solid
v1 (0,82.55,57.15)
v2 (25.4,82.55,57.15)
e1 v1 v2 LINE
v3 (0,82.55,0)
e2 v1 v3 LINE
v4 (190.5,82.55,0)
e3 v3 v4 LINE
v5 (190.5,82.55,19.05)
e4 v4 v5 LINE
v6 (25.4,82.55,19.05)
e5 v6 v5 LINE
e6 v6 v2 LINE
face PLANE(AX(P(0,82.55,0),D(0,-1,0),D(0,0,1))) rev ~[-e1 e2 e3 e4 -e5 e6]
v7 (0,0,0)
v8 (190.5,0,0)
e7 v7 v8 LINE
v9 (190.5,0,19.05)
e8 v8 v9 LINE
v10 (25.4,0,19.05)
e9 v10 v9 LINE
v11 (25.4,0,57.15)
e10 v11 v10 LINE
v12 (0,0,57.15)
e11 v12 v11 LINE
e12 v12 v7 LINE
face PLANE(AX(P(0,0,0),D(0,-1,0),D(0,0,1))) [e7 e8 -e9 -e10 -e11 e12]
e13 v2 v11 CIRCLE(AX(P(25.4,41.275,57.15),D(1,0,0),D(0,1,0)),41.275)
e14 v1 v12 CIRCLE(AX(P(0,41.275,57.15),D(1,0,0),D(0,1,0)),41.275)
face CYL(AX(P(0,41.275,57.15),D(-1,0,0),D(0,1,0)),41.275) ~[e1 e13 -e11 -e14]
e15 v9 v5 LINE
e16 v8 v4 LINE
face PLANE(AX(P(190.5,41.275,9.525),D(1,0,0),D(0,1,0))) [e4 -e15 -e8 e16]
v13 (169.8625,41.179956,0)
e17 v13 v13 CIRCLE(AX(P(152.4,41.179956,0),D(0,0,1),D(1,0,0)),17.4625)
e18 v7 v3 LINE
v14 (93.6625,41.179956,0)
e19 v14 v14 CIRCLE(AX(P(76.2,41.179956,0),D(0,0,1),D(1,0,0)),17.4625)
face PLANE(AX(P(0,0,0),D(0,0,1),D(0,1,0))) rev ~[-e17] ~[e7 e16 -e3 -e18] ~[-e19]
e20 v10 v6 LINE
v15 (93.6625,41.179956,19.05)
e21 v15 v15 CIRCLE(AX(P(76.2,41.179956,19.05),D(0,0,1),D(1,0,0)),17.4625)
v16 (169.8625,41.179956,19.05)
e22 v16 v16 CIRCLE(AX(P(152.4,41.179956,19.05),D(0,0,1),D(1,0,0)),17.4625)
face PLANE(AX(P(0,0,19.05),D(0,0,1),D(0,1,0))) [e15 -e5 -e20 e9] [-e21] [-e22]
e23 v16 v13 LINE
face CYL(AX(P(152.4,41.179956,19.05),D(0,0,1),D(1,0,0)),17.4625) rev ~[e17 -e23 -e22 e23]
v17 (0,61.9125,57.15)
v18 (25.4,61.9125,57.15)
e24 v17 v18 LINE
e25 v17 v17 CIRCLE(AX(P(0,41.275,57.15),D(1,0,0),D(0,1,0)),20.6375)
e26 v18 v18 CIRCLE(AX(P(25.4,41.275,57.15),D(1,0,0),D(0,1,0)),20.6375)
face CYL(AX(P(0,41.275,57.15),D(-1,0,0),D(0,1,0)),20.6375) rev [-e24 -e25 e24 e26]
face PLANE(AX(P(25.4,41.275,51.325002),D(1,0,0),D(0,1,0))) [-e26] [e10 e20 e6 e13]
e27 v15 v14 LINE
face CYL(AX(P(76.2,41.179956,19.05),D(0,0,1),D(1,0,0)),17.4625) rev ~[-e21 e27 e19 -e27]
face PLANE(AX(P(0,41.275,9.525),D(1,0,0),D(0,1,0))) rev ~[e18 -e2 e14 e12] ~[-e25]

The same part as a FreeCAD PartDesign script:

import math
import FreeCAD as App
import Part
import Sketcher

V = App.Vector
Q = App.Units.Quantity


def add_polygon(sketch, points):
    """Adds a closed chain of lines whose ends are joined by coincident constraints."""
    first, n = sketch.GeometryCount, len(points)
    for a, b in zip(points, points[1:] + points[:1]):
        sketch.addGeometry(Part.LineSegment(App.Vector(*a, 0), App.Vector(*b, 0)), False)
    for i in range(n):
        sketch.addConstraint(Sketcher.Constraint("Coincident", first + i, 2, first + (i + 1) % n, 1))

doc = App.newDocument("Part")
body = doc.addObject("PartDesign::Body", "Body")

# Sketch on YZ plane
sketch1 = body.newObject("Sketcher::SketchObject", "Sketch")
sketch1.AttachmentSupport = (doc.getObject("YZ_Plane"), [""])
sketch1.MapMode = "FlatFace"
sketch1.addGeometry(Part.LineSegment(V(0, 57, 0), V(0, 19, 0)), False)
sketch1.addGeometry(Part.LineSegment(V(0, 19, 0), V(83, 19, 0)), False)
sketch1.addGeometry(Part.LineSegment(V(83, 19, 0), V(83, 57, 0)), False)
sketch1.addGeometry(Part.ArcOfCircle(Part.Circle(V(41, 57, 0), V(0, 0, 1), 41), math.radians(0), math.radians(180)), False)
sketch1.addGeometry(Part.Circle(V(41, 57, 0), V(0, 0, 1), 21), False)
sketch1.addConstraint(Sketcher.Constraint("Coincident", 0, 2, 1, 1))
sketch1.addConstraint(Sketcher.Constraint("Coincident", 1, 2, 2, 1))
sketch1.addConstraint(Sketcher.Constraint("Tangent", 2, 2, 3, 1))
sketch1.addConstraint(Sketcher.Constraint("Tangent", 3, 2, 0, 1))
sketch1.addConstraint(Sketcher.Constraint("Vertical", 0))
sketch1.addConstraint(Sketcher.Constraint("Horizontal", 1))
sketch1.addConstraint(Sketcher.Constraint("Vertical", 2))
sketch1.addConstraint(Sketcher.Constraint("Coincident", 4, 3, 3, 3))
sketch1.addConstraint(Sketcher.Constraint("PointOnObject", 0, 2, -2))
sketch1.addConstraint(Sketcher.Constraint("Diameter", 4, Q("1.625 in")))
sketch1.addConstraint(Sketcher.Constraint("DistanceY", 0, 2, 0, 1, Q("1.5 in")))
sketch1.addConstraint(Sketcher.Constraint("Radius", 3, Q("1.625 in")))
sketch1.addConstraint(Sketcher.Constraint("DistanceY", -1, 1, 3, 3, Q("2.25 in")))
pad1 = body.newObject("PartDesign::Pad", "Pad")
pad1.Profile = sketch1
pad1.Length = Q("1 in")

# Sketch on YZ plane
sketch2 = body.newObject("Sketcher::SketchObject", "Sketch001")
sketch2.AttachmentSupport = (doc.getObject("YZ_Plane"), [""])
sketch2.MapMode = "FlatFace"
add_polygon(sketch2, [(0, 19), (0, 0), (83, 0), (83, 19)])  # lines 0-3
sketch2.addConstraint(Sketcher.Constraint("Vertical", 0))
sketch2.addConstraint(Sketcher.Constraint("Horizontal", 1))
sketch2.addConstraint(Sketcher.Constraint("Vertical", 2))
sketch2.addConstraint(Sketcher.Constraint("Horizontal", 3))
sketch2.addConstraint(Sketcher.Constraint("Coincident", 0, 2, -1, 1))
sketch2.addConstraint(Sketcher.Constraint("DistanceX", 1, 1, 1, 2, Q("3.25 in")))
sketch2.addConstraint(Sketcher.Constraint("DistanceY", 0, 2, 0, 1, Q("0.75 in")))
pad2 = body.newObject("PartDesign::Pad", "Pad001")
pad2.Profile = sketch2
pad2.Length = Q("7.5 in")

# Sketch on XY plane
sketch3 = body.newObject("Sketcher::SketchObject", "Sketch002")
sketch3.AttachmentSupport = (doc.getObject("XY_Plane"), [""])
sketch3.MapMode = "FlatFace"
sketch3.AttachmentOffset = App.Placement(V(0, 0, 0.75 * 25.4), App.Rotation())
sketch3.addGeometry(Part.Circle(V(76, 41, 0), V(0, 0, 1), 17), False)
sketch3.addGeometry(Part.Circle(V(152, 41, 0), V(0, 0, 1), 17), False)
sketch3.addConstraint(Sketcher.Constraint("Equal", 0, 1))
sketch3.addConstraint(Sketcher.Constraint("Horizontal", 0, 3, 1, 3))
sketch3.addConstraint(Sketcher.Constraint("Diameter", 0, Q("1.375 in")))
sketch3.addConstraint(Sketcher.Constraint("DistanceX", -1, 1, 0, 3, Q("3 in")))
sketch3.addConstraint(Sketcher.Constraint("DistanceX", -1, 1, 1, 3, Q("6 in")))
sketch3.addConstraint(Sketcher.Constraint("DistanceY", -1, 1, 0, 3, Q("41.179956 mm")))
pocket1 = body.newObject("PartDesign::Pocket", "Pocket")
pocket1.Profile = sketch3
pocket1.Length = Q("1 in")

doc.recompute()
